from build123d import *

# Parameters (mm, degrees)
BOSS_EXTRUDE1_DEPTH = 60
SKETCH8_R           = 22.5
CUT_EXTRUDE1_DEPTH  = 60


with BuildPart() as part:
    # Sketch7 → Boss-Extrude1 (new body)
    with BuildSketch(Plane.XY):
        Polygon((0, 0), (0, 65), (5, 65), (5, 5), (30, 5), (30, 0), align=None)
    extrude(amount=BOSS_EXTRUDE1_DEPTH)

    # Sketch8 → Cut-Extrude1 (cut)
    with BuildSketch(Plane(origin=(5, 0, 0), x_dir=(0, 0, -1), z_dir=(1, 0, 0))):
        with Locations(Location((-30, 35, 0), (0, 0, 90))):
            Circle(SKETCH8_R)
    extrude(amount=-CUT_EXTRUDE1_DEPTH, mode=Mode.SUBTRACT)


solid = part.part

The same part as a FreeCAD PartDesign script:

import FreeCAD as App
import Part
import Sketcher

V = App.Vector


def add_polygon(sketch, points):
    """Adds a closed chain of lines whose ends are joined by coincident constraints."""
    first, n = sketch.GeometryCount, len(points)
    for a, b in zip(points, points[1:] + points[:1]):
        sketch.addGeometry(Part.LineSegment(App.Vector(*a, 0), App.Vector(*b, 0)), False)
    for i in range(n):
        sketch.addConstraint(Sketcher.Constraint("Coincident", first + i, 2, first + (i + 1) % n, 1))

doc = App.newDocument("Part")
body = doc.addObject("PartDesign::Body", "Body")

sketch1 = doc.addObject("Sketcher::SketchObject", "Sketch")
body.addObject(sketch1)
sketch1.AttachmentSupport = (doc.XY_Plane, [""])
sketch1.MapMode = "FlatFace"
add_polygon(sketch1, [(0, 65), (0, 0), (30, 0), (30, 5), (5, 5), (5, 65)])
sketch1.addConstraint([
    Sketcher.Constraint("Vertical", 0),
    Sketcher.Constraint("Horizontal", 1),
    Sketcher.Constraint("Vertical", 2),
    Sketcher.Constraint("Horizontal", 3),
    Sketcher.Constraint("Vertical", 4),
    Sketcher.Constraint("Horizontal", 5),
    Sketcher.Constraint("Coincident", 0, 2, -1, 1),
    Sketcher.Constraint("Equal", 5, 2),
    Sketcher.Constraint("DistanceX", 1, 1, 1, 2, 30.0),
    Sketcher.Constraint("DistanceX", 3, 2, 3, 1, 25.0),
    Sketcher.Constraint("DistanceY", 0, 2, 0, 1, 65.0),
])
pad1 = doc.addObject("PartDesign::Pad", "Pad")
body.addObject(pad1)
pad1.Profile = sketch1
pad1.Length = 60

sketch2 = doc.addObject("Sketcher::SketchObject", "Sketch001")
body.addObject(sketch2)
sketch2.AttachmentSupport = (doc.YZ_Plane, [""])
sketch2.MapMode = "FlatFace"
sketch2.AttachmentOffset = App.Placement(V(0, 0, 5), App.Rotation())
sketch2.addGeometry(Part.Circle(V(35, 30, 0), V(0, 0, 1), 22), False)
sketch2.addConstraint([
    Sketcher.Constraint("Diameter", 0, 45.0),
    Sketcher.Constraint("DistanceX", -1, 1, 0, 3, 35.0),
    Sketcher.Constraint("DistanceY", -1, 1, 0, 3, 30.0),
])
pocket1 = doc.addObject("PartDesign::Pocket", "Pocket")
body.addObject(pocket1)
pocket1.Profile = sketch2
pocket1.Length = 60

doc.recompute()
